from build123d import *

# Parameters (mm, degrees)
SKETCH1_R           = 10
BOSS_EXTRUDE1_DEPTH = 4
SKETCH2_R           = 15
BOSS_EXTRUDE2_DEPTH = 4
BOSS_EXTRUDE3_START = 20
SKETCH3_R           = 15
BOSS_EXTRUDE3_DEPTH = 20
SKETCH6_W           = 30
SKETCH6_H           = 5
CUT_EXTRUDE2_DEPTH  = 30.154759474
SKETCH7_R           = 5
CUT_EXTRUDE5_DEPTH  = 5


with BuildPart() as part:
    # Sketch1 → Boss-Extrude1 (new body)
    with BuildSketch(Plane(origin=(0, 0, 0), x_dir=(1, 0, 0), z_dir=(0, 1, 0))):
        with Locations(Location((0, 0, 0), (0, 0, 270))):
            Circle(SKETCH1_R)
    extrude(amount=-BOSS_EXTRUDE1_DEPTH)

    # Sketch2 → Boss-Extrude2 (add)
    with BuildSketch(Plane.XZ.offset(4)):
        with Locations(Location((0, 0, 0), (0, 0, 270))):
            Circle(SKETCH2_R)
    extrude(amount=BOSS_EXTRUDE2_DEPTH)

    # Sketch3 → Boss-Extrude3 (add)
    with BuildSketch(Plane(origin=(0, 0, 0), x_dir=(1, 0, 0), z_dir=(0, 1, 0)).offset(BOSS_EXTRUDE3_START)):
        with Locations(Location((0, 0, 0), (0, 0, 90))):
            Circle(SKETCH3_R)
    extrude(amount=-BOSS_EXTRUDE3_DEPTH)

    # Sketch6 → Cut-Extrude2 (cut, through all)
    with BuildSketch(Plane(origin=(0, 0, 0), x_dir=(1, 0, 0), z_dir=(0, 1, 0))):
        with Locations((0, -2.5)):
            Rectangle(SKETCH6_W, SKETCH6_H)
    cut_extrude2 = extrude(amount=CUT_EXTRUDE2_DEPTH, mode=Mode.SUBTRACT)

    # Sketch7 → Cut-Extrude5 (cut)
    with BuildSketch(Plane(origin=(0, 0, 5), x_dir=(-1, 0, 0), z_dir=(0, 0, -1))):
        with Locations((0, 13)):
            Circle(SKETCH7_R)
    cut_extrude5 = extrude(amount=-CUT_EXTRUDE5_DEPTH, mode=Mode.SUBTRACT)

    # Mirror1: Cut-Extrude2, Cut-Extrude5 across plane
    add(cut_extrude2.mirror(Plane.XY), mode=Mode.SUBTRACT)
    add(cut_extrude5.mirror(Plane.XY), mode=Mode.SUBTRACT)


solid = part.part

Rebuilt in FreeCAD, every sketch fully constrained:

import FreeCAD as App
import Part
import Sketcher

V = App.Vector

doc = App.newDocument("Part")
params = doc.addObject("Spreadsheet::Sheet", "Params")
for row, (alias, value) in enumerate([
    ("sketch1_diameter", "20 mm"),
    ("pad1_length", "4 mm"),
    ("sketch2_diameter", "30 mm"),
    ("pad2_length", "4 mm"),
    ("sketch3_diameter", "30 mm"),
    ("pad3_length", "20 mm"),
    ("sketch4_width", "30 mm"),
    ("sketch4_height", "5 mm"),
    ("sketch5_diameter", "10 mm"),
    ("pocket2_length", "5 mm"),
], start=1):
    params.set(f"A{row}", alias)
    params.set(f"B{row}", "=" + value)
    params.setAlias(f"B{row}", alias)

body = doc.addObject("PartDesign::Body", "Body")

# Sketch on XZ plane
sketch1 = body.newObject("Sketcher::SketchObject", "Sketch")
sketch1.AttachmentSupport = (doc.getObject("XZ_Plane"), [""])
sketch1.MapMode = "FlatFace"
sketch1.addGeometry(Part.Circle(V(0, 0, 0), V(0, 0, 1), 10), False)
sketch1.addConstraint(Sketcher.Constraint("Coincident", 0, 3, -1, 1))
sketch1.addConstraint(Sketcher.Constraint("Diameter", 0, 20.0))
sketch1.setExpression("Constraints[1]", "Params.sketch1_diameter")
pad1 = body.newObject("PartDesign::Pad", "Pad")
pad1.Profile = sketch1
pad1.setExpression("Length", "Params.pad1_length")

# Sketch on XZ plane
sketch2 = body.newObject("Sketcher::SketchObject", "Sketch001")
sketch2.AttachmentSupport = (doc.getObject("XZ_Plane"), [""])
sketch2.MapMode = "FlatFace"
sketch2.AttachmentOffset = App.Placement(V(0, 0, 4), App.Rotation())
sketch2.addGeometry(Part.Circle(V(0, 0, 0), V(0, 0, 1), 15), False)
sketch2.addConstraint(Sketcher.Constraint("Coincident", 0, 3, -1, 1))
sketch2.addConstraint(Sketcher.Constraint("Diameter", 0, 30.0))
sketch2.setExpression("Constraints[1]", "Params.sketch2_diameter")
pad2 = body.newObject("PartDesign::Pad", "Pad001")
pad2.Profile = sketch2
pad2.setExpression("Length", "Params.pad2_length")

# Sketch on XZ plane
sketch3 = body.newObject("Sketcher::SketchObject", "Sketch002")
sketch3.AttachmentSupport = (doc.getObject("XZ_Plane"), [""])
sketch3.MapMode = "FlatFace"
sketch3.AttachmentOffset = App.Placement(V(0, 0, -20), App.Rotation())
sketch3.addGeometry(Part.Circle(V(0, 0, 0), V(0, 0, 1), 15), False)
sketch3.addConstraint(Sketcher.Constraint("Coincident", 0, 3, -1, 1))
sketch3.addConstraint(Sketcher.Constraint("Diameter", 0, 30.0))
sketch3.setExpression("Constraints[1]", "Params.sketch3_diameter")
pad3 = body.newObject("PartDesign::Pad", "Pad002")
pad3.Profile = sketch3
pad3.setExpression("Length", "Params.pad3_length")

# Sketch on XZ plane
sketch4 = body.newObject("Sketcher::SketchObject", "Sketch003")
sketch4.AttachmentSupport = (doc.getObject("XZ_Plane"), [""])
sketch4.MapMode = "FlatFace"
sketch4.addGeometry(Part.LineSegment(V(-15, 0, 0), V(-15, 5, 0)), False)
sketch4.addGeometry(Part.LineSegment(V(-15, 5, 0), V(15, 5, 0)), False)
sketch4.addGeometry(Part.LineSegment(V(15, 5, 0), V(15, 0, 0)), False)
sketch4.addGeometry(Part.LineSegment(V(15, 0, 0), V(-15, 0, 0)), False)
sketch4.addConstraint(Sketcher.Constraint("Coincident", 0, 2, 1, 1))
sketch4.addConstraint(Sketcher.Constraint("Coincident", 1, 2, 2, 1))
sketch4.addConstraint(Sketcher.Constraint("Coincident", 2, 2, 3, 1))
sketch4.addConstraint(Sketcher.Constraint("Coincident", 3, 2, 0, 1))
sketch4.addConstraint(Sketcher.Constraint("Vertical", 0))
sketch4.addConstraint(Sketcher.Constraint("Horizontal", 1))
sketch4.addConstraint(Sketcher.Constraint("Vertical", 2))
sketch4.addConstraint(Sketcher.Constraint("Horizontal", 3))
sketch4.addConstraint(Sketcher.Constraint("Symmetric", 2, 2, 3, 2, -1, 1))
sketch4.addConstraint(Sketcher.Constraint("DistanceX", 1, 1, 1, 2, 30.0))
sketch4.addConstraint(Sketcher.Constraint("DistanceY", 0, 1, 0, 2, 5.0))
sketch4.setExpression("Constraints[9]", "Params.sketch4_width")
sketch4.setExpression("Constraints[10]", "Params.sketch4_height")
pocket1 = body.newObject("PartDesign::Pocket", "Pocket")
pocket1.Profile = sketch4
pocket1.Type = "ThroughAll"

# Sketch on XY plane
sketch5 = body.newObject("Sketcher::SketchObject", "Sketch004")
sketch5.AttachmentSupport = (doc.getObject("XY_Plane"), [""])
sketch5.MapMode = "FlatFace"
sketch5.AttachmentOffset = App.Placement(V(0, 0, 5), App.Rotation())
sketch5.addGeometry(Part.Circle(V(0, 13, 0), V(0, 0, 1), 5), False)
sketch5.addConstraint(Sketcher.Constraint("PointOnObject", 0, 3, -2))
sketch5.addConstraint(Sketcher.Constraint("Diameter", 0, 10.0))
sketch5.addConstraint(Sketcher.Constraint("DistanceY", -1, 1, 0, 3, 13.0))
sketch5.setExpression("Constraints[1]", "Params.sketch5_diameter")
pocket2 = body.newObject("PartDesign::Pocket", "Pocket001")
pocket2.Profile = sketch5
pocket2.setExpression("Length", "Params.pocket2_length")
pocket2.Reversed = True
doc.recompute()

mirrored = body.newObject("PartDesign::Mirrored", "Mirrored")
mirrored.Originals = [pocket1, pocket2]
mirrored.MirrorPlane = (doc.getObject("XY_Plane"), [""])
body.Tip = mirrored

doc.recompute()
